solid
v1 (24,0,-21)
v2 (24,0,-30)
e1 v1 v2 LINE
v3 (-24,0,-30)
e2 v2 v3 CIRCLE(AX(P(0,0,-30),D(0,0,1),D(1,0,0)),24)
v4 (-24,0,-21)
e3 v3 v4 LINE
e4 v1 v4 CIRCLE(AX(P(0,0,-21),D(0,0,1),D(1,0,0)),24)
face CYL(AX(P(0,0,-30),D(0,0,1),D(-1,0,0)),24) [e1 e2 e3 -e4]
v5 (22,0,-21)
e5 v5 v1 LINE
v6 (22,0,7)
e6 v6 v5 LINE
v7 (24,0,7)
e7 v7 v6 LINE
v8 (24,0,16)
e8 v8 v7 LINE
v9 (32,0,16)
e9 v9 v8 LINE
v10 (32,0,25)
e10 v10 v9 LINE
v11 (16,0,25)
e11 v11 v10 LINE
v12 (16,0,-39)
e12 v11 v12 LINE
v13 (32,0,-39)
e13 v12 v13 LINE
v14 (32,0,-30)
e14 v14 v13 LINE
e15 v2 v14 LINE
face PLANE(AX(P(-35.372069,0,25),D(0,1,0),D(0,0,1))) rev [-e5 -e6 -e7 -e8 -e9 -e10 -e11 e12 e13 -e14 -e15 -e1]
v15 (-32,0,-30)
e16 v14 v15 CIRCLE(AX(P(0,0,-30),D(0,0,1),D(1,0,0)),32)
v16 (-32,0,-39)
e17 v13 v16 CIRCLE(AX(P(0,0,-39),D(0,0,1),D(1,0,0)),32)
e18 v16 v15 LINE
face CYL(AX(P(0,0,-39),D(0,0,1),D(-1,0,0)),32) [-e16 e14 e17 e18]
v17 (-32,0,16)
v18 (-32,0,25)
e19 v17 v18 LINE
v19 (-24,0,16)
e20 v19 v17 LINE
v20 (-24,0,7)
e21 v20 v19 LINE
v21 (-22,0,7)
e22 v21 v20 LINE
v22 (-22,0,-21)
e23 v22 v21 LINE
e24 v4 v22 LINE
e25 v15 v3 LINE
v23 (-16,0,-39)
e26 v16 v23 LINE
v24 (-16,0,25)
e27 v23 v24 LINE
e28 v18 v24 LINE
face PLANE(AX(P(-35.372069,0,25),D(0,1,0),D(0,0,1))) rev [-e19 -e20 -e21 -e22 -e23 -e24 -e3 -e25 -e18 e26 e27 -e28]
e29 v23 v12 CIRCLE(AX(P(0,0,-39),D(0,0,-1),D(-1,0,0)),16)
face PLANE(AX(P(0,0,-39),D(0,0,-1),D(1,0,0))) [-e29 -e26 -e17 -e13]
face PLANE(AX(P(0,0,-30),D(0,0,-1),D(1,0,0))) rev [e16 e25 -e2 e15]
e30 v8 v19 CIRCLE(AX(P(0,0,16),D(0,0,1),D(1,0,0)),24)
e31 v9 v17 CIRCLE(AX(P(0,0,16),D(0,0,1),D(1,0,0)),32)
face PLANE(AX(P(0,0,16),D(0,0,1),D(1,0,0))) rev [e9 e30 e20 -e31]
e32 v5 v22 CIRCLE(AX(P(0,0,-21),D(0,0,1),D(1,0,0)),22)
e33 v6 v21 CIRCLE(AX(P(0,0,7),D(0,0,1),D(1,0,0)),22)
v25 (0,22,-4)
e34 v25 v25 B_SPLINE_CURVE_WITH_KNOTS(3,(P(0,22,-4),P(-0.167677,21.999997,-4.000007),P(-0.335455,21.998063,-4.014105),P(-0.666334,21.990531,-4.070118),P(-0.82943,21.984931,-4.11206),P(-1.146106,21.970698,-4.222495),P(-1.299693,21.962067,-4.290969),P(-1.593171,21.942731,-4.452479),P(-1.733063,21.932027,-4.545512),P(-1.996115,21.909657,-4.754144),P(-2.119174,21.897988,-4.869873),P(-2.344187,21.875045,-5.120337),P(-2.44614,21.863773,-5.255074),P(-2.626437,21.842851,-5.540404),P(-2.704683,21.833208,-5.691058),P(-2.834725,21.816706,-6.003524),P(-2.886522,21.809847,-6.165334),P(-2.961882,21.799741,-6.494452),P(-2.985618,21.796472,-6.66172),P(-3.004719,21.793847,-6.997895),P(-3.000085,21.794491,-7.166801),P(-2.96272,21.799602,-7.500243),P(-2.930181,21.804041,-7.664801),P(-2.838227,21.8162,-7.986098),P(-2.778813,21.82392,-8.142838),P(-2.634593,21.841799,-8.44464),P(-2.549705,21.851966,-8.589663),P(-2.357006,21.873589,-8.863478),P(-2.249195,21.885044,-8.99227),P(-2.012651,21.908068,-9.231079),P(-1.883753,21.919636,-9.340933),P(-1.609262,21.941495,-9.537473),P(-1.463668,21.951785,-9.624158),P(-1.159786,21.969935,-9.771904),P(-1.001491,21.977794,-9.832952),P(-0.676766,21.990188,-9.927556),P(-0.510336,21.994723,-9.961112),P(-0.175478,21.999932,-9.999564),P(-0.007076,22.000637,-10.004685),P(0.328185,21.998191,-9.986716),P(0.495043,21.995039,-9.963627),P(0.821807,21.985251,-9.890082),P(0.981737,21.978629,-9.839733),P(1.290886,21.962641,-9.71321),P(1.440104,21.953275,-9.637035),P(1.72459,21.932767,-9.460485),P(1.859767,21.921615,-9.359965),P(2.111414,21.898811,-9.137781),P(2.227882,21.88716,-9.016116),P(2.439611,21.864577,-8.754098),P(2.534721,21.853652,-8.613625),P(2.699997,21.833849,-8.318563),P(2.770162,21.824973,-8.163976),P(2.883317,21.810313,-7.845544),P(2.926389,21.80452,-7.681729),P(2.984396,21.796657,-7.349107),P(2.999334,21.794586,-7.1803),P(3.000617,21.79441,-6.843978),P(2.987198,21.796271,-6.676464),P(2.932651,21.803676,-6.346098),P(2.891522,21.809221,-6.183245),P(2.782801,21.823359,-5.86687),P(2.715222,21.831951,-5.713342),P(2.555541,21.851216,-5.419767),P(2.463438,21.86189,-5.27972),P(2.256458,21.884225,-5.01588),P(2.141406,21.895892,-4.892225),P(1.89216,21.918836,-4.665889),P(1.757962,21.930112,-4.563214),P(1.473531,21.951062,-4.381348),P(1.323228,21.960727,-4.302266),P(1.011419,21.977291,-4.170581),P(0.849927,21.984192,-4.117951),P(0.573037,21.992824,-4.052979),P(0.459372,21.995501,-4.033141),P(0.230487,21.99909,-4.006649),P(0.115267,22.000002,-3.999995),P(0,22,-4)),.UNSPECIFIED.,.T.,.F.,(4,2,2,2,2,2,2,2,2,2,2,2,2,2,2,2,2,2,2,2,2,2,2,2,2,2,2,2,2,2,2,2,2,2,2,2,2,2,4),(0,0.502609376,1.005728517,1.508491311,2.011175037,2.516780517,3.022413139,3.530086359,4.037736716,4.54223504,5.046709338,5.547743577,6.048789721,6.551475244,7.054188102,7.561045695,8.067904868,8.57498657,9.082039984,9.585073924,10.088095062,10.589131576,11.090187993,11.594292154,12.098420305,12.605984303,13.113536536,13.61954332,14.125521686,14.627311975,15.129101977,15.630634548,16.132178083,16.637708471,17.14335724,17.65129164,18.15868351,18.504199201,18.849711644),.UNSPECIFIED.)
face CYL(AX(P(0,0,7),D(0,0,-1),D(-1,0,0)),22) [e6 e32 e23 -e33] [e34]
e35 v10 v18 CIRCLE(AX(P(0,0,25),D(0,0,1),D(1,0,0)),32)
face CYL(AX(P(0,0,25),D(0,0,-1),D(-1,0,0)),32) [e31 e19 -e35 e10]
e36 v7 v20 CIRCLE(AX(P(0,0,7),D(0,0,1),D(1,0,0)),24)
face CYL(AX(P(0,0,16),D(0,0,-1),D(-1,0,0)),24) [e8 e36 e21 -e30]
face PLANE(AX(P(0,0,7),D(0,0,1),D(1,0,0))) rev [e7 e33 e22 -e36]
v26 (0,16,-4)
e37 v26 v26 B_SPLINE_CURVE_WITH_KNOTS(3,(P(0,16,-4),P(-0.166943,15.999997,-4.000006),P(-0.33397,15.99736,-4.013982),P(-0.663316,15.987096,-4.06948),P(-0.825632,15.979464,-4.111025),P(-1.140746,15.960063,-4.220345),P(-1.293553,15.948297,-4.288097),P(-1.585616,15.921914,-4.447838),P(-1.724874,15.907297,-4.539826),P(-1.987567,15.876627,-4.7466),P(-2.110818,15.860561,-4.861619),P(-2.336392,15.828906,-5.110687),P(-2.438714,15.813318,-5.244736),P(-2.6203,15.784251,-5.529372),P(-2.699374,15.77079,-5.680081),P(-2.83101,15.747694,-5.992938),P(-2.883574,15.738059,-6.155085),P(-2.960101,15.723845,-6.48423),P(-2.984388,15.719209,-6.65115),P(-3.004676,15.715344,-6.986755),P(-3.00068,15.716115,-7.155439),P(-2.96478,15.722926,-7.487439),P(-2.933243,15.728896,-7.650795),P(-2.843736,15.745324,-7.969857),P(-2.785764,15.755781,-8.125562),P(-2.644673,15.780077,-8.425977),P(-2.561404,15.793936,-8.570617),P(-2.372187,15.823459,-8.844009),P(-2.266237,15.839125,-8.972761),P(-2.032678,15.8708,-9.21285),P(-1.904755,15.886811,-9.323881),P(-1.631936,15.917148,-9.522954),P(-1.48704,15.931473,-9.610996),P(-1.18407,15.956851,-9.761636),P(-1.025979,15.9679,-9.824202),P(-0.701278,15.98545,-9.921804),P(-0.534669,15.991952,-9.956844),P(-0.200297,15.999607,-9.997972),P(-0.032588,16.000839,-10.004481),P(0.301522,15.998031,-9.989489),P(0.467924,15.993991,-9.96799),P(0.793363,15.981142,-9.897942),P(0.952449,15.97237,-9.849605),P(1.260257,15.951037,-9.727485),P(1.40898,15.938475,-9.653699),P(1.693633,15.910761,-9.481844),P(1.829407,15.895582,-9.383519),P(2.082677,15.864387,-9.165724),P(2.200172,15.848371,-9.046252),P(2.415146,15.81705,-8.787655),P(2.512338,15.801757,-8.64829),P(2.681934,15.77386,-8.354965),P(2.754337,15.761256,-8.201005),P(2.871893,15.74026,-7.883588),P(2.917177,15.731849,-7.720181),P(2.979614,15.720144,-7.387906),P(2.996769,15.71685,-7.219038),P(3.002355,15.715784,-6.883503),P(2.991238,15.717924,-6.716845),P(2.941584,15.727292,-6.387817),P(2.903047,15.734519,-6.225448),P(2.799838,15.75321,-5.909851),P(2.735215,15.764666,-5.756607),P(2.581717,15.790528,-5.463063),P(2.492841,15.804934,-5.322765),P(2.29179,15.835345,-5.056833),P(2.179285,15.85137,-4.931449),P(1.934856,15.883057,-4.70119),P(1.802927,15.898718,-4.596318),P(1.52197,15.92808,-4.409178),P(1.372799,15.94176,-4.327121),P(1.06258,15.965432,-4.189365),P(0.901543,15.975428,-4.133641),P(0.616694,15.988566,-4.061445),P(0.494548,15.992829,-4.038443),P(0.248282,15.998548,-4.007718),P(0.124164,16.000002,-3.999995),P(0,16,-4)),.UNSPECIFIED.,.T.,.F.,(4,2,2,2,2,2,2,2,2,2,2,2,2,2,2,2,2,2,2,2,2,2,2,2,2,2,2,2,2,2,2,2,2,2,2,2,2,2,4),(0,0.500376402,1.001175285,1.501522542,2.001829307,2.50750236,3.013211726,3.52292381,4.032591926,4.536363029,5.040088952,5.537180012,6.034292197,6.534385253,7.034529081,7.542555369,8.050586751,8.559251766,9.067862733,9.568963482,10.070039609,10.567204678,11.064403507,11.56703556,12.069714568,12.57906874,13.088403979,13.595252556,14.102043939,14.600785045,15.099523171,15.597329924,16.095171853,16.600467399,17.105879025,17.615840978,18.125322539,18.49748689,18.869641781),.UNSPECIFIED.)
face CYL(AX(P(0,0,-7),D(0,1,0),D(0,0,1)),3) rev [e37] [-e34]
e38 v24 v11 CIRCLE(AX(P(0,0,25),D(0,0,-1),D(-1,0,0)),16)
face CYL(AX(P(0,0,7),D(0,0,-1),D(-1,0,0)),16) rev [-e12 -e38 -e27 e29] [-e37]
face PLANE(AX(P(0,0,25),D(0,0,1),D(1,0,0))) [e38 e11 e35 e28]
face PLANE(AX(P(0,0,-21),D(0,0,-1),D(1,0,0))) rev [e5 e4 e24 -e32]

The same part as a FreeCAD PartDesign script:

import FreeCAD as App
import Part
import Sketcher

V = App.Vector
Q = App.Units.Quantity

doc = App.newDocument("Part")
body = doc.addObject("PartDesign::Body", "Body")

sketch1 = body.newObject("Sketcher::SketchObject", "Sketch")
sketch1.AttachmentSupport = (doc.getObject("XY_Plane"), [""])
sketch1.MapMode = "FlatFace"
sketch1.addGeometry([
    Part.Circle(V(0, 0, 0), V(0, 0, 1), 22),
    Part.Circle(V(0, 0, 0), V(0, 0, 1), 16),
], False)
sketch1.addConstraint([
    Sketcher.Constraint("Coincident", 0, 3, -1, 1),
    Sketcher.Constraint("Coincident", 1, 3, -1, 1),
    Sketcher.Constraint("Diameter", 0, Q("44 mm")),
    Sketcher.Constraint("Diameter", 1, Q("32 mm")),
])
pad1 = body.newObject("PartDesign::Pad", "Pad")
pad1.Profile = sketch1
pad1.Length = 14
pad1.Midplane = True

sketch2 = body.newObject("Sketcher::SketchObject", "Sketch001")
sketch2.AttachmentSupport = (doc.getObject("XY_Plane"), [""])
sketch2.MapMode = "FlatFace"
sketch2.AttachmentOffset = App.Placement(V(0, 0, 7), App.Rotation())
sketch2.addGeometry(Part.Circle(V(0, 0, 0), V(0, 0, 1), 24), False)
sketch2.addConstraint([
    Sketcher.Constraint("Coincident", 0, 3, -1, 1),
    Sketcher.Constraint("Diameter", 0, Q("48 mm")),
])
pad2 = body.newObject("PartDesign::Pad", "Pad001")
pad2.Profile = sketch2
pad2.Length = 9

sketch3 = body.newObject("Sketcher::SketchObject", "Sketch002")
sketch3.AttachmentSupport = (doc.getObject("XY_Plane"), [""])
sketch3.MapMode = "FlatFace"
sketch3.AttachmentOffset = App.Placement(V(0, 0, 16), App.Rotation())
sketch3.addGeometry(Part.Circle(V(0, 0, 0), V(0, 0, 1), 32), False)
sketch3.addConstraint([
    Sketcher.Constraint("Coincident", 0, 3, -1, 1),
    Sketcher.Constraint("Diameter", 0, Q("64 mm")),
])
pad3 = body.newObject("PartDesign::Pad", "Pad002")
pad3.Profile = sketch3
pad3.Length = 9

sketch4 = body.newObject("Sketcher::SketchObject", "Sketch003")
sketch4.AttachmentSupport = (doc.getObject("XY_Plane"), [""])
sketch4.MapMode = "FlatFace"
sketch4.AttachmentOffset = App.Placement(V(0, 0, -7), App.Rotation())
sketch4.addGeometry(Part.Circle(V(0, 0, 0), V(0, 0, 1), 16), False)
sketch4.addConstraint([
    Sketcher.Constraint("Coincident", 0, 3, -1, 1),
    Sketcher.Constraint("Diameter", 0, Q("32 mm")),
])
pocket1 = body.newObject("PartDesign::Pocket", "Pocket")
pocket1.Profile = sketch4
pocket1.Type = "ThroughAll"
pocket1.Reversed = True
body2 = doc.addObject("PartDesign::Body", "Body001")
doc.recompute()

body2.BaseFeature = body
doc.recompute()

mirroring = doc.addObject("Part::Mirroring", "Mirroring")
mirroring.Source = body
mirroring.Base = V(0, 0, -7)
mirroring.Normal = V(0, 0, 1)
body3 = doc.addObject("PartDesign::Body", "Body002")
body3.BaseFeature = mirroring
boolean = body2.newObject("PartDesign::Boolean", "Boolean")
boolean.Type = "Fuse"
boolean.addObjects([body3])
doc.recompute()

sketch5 = body2.newObject("Sketcher::SketchObject", "Sketch004")
sketch5.AttachmentSupport = (doc.getObject("XY_Plane001"), [""])
sketch5.MapMode = "FlatFace"
sketch5.AttachmentOffset = App.Placement(V(0, 0, 25), App.Rotation())
sketch5.addGeometry([
    Part.LineSegment(V(194, 0, 0), V(-195, 0, 0)),
    Part.LineSegment(V(-195, 0, 0), V(-195, -318, 0)),
    Part.LineSegment(V(-195, -318, 0), V(194, -318, 0)),
    Part.LineSegment(V(194, -318, 0), V(194, 0, 0)),
], False)
sketch5.addConstraint([
    Sketcher.Constraint("Coincident", 0, 2, 1, 1),
    Sketcher.Constraint("Coincident", 1, 2, 2, 1),
    Sketcher.Constraint("Coincident", 2, 2, 3, 1),
    Sketcher.Constraint("Coincident", 3, 2, 0, 1),
    Sketcher.Constraint("Horizontal", 0),
    Sketcher.Constraint("Vertical", 1),
    Sketcher.Constraint("Horizontal", 2),
    Sketcher.Constraint("Vertical", 3),
    Sketcher.Constraint("PointOnObject", 0, 2, -1),
    Sketcher.Constraint("DistanceX", 0, 2, 0, 1, Q("388.284219 mm")),
    Sketcher.Constraint("DistanceY", 1, 2, 1, 1, Q("318.341968 mm")),
    Sketcher.Constraint("DistanceX", 0, 2, -1, 1, Q("194.543053 mm")),
])
pocket2 = body2.newObject("PartDesign::Pocket", "Pocket001")
pocket2.Profile = sketch5
pocket2.Type = "ThroughAll"

sketch6 = body2.newObject("Sketcher::SketchObject", "Sketch005")
sketch6.AttachmentSupport = (doc.getObject("XZ_Plane001"), [""])
sketch6.MapMode = "FlatFace"
sketch6.AttachmentOffset = App.Placement(V(0, 0, -22), App.Rotation())
sketch6.addGeometry(Part.Circle(V(0, -7, 0), V(0, 0, 1), 3), False)
sketch6.addConstraint([
    Sketcher.Constraint("PointOnObject", 0, 3, -2),
    Sketcher.Constraint("Diameter", 0, Q("6 mm")),
    Sketcher.Constraint("DistanceY", 0, 3, -1, 1, Q("7 mm")),
])
pocket3 = body2.newObject("PartDesign::Pocket", "Pocket002")
pocket3.Profile = sketch6
pocket3.Type = "ThroughAll"
pocket3.Reversed = True
mirroring.Visibility = False

doc.recompute()
